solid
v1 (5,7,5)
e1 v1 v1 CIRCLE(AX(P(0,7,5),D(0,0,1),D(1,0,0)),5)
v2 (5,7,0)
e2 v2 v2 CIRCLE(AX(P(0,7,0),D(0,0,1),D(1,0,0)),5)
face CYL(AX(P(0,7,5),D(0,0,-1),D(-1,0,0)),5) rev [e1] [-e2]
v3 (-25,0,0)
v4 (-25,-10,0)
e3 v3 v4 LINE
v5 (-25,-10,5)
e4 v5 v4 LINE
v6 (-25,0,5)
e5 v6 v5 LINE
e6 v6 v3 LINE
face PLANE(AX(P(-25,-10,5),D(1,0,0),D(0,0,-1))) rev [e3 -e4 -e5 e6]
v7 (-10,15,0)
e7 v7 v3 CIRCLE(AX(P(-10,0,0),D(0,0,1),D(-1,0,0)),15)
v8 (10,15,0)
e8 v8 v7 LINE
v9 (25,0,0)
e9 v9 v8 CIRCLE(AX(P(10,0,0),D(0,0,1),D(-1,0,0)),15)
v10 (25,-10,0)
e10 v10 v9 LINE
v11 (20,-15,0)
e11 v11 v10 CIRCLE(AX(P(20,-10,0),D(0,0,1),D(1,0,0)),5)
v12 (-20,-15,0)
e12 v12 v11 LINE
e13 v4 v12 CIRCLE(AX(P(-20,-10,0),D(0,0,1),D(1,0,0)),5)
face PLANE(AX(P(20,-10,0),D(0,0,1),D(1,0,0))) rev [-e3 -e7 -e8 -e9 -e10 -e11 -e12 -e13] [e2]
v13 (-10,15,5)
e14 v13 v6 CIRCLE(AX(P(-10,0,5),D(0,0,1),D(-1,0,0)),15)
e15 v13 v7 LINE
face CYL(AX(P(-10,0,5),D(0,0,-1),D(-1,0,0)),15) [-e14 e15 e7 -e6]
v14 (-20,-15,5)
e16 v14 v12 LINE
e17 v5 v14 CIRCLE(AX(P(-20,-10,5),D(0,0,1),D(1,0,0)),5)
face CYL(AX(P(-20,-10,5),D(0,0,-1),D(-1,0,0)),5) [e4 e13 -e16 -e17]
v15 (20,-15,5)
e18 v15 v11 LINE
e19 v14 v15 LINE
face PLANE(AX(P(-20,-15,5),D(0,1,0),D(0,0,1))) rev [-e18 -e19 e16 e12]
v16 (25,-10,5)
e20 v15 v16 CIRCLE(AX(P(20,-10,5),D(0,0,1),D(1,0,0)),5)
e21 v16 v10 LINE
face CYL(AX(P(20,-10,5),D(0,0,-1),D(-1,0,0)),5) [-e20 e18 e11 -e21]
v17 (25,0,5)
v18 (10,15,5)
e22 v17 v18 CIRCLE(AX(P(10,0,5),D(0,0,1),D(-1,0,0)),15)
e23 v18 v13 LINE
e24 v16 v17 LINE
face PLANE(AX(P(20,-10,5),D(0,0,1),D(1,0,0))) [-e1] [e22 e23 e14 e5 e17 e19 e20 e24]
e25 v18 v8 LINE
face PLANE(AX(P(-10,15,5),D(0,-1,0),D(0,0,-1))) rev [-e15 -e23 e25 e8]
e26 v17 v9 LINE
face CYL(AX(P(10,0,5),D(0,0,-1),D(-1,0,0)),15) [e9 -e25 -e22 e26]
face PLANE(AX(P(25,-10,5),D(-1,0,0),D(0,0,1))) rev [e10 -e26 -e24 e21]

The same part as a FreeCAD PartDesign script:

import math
import FreeCAD as App
import Part
import Sketcher
Q = App.Units.Quantity

doc = App.newDocument("Part")
body = doc.addObject("PartDesign::Body", "Body")

sketch1 = body.newObject("Sketcher::SketchObject", "Sketch")
sketch1.AttachmentSupport = (doc.getObject("XY_Plane"), [""])
sketch1.MapMode = "FlatFace"
sketch1.addGeometry([
    Part.LineSegment(App.Vector(-20, -15, 0), App.Vector(20, -15, 0)),
    Part.ArcOfCircle(Part.Circle(App.Vector(20, -10, 0), App.Vector(0, 0, 1), 5), math.radians(-90), math.radians(0)),
    Part.LineSegment(App.Vector(25, -10, 0), App.Vector(25, 0, 0)),
    Part.ArcOfCircle(Part.Circle(App.Vector(10, 0, 0), App.Vector(0, 0, 1), 15), math.radians(0), math.radians(90)),
    Part.LineSegment(App.Vector(10, 15, 0), App.Vector(-10, 15, 0)),
    Part.ArcOfCircle(Part.Circle(App.Vector(-10, 0, 0), App.Vector(0, 0, 1), 15), math.radians(90), math.radians(180)),
    Part.LineSegment(App.Vector(-25, 0, 0), App.Vector(-25, -10, 0)),
    Part.ArcOfCircle(Part.Circle(App.Vector(-20, -10, 0), App.Vector(0, 0, 1), 5), math.radians(180), math.radians(270)),
    Part.Circle(App.Vector(0, 7, 0), App.Vector(0, 0, 1), 5),
], False)
sketch1.addConstraint([
    Sketcher.Constraint("Tangent", 0, 2, 1, 1),
    Sketcher.Constraint("Tangent", 1, 2, 2, 1),
    Sketcher.Constraint("Tangent", 2, 2, 3, 1),
    Sketcher.Constraint("Tangent", 3, 2, 4, 1),
    Sketcher.Constraint("Tangent", 4, 2, 5, 1),
    Sketcher.Constraint("Tangent", 5, 2, 6, 1),
    Sketcher.Constraint("Tangent", 6, 2, 7, 1),
    Sketcher.Constraint("Tangent", 7, 2, 0, 1),
    Sketcher.Constraint("Horizontal", 0),
    Sketcher.Constraint("Vertical", 2),
    Sketcher.Constraint("Horizontal", 4),
    Sketcher.Constraint("Vertical", 6),
    Sketcher.Constraint("Equal", 3, 5),
    Sketcher.Constraint("Equal", 1, 7),
    Sketcher.Constraint("Equal", 7, 8),
    Sketcher.Constraint("Symmetric", 3, 3, 5, 3, -1, 1),
    Sketcher.Constraint("PointOnObject", 8, 3, -2),
    Sketcher.Constraint("Diameter", 8, Q("10 mm")),
    Sketcher.Constraint("Radius", 3, Q("15 mm")),
    Sketcher.Constraint("DistanceX", 0, 1, 0, 2, Q("40 mm")),
    Sketcher.Constraint("DistanceY", 2, 1, 2, 2, Q("10 mm")),
    Sketcher.Constraint("DistanceY", -1, 1, 8, 3, Q("7 mm")),
])
pad1 = body.newObject("PartDesign::Pad", "Pad")
pad1.Profile = sketch1
pad1.Length = 5

doc.recompute()
